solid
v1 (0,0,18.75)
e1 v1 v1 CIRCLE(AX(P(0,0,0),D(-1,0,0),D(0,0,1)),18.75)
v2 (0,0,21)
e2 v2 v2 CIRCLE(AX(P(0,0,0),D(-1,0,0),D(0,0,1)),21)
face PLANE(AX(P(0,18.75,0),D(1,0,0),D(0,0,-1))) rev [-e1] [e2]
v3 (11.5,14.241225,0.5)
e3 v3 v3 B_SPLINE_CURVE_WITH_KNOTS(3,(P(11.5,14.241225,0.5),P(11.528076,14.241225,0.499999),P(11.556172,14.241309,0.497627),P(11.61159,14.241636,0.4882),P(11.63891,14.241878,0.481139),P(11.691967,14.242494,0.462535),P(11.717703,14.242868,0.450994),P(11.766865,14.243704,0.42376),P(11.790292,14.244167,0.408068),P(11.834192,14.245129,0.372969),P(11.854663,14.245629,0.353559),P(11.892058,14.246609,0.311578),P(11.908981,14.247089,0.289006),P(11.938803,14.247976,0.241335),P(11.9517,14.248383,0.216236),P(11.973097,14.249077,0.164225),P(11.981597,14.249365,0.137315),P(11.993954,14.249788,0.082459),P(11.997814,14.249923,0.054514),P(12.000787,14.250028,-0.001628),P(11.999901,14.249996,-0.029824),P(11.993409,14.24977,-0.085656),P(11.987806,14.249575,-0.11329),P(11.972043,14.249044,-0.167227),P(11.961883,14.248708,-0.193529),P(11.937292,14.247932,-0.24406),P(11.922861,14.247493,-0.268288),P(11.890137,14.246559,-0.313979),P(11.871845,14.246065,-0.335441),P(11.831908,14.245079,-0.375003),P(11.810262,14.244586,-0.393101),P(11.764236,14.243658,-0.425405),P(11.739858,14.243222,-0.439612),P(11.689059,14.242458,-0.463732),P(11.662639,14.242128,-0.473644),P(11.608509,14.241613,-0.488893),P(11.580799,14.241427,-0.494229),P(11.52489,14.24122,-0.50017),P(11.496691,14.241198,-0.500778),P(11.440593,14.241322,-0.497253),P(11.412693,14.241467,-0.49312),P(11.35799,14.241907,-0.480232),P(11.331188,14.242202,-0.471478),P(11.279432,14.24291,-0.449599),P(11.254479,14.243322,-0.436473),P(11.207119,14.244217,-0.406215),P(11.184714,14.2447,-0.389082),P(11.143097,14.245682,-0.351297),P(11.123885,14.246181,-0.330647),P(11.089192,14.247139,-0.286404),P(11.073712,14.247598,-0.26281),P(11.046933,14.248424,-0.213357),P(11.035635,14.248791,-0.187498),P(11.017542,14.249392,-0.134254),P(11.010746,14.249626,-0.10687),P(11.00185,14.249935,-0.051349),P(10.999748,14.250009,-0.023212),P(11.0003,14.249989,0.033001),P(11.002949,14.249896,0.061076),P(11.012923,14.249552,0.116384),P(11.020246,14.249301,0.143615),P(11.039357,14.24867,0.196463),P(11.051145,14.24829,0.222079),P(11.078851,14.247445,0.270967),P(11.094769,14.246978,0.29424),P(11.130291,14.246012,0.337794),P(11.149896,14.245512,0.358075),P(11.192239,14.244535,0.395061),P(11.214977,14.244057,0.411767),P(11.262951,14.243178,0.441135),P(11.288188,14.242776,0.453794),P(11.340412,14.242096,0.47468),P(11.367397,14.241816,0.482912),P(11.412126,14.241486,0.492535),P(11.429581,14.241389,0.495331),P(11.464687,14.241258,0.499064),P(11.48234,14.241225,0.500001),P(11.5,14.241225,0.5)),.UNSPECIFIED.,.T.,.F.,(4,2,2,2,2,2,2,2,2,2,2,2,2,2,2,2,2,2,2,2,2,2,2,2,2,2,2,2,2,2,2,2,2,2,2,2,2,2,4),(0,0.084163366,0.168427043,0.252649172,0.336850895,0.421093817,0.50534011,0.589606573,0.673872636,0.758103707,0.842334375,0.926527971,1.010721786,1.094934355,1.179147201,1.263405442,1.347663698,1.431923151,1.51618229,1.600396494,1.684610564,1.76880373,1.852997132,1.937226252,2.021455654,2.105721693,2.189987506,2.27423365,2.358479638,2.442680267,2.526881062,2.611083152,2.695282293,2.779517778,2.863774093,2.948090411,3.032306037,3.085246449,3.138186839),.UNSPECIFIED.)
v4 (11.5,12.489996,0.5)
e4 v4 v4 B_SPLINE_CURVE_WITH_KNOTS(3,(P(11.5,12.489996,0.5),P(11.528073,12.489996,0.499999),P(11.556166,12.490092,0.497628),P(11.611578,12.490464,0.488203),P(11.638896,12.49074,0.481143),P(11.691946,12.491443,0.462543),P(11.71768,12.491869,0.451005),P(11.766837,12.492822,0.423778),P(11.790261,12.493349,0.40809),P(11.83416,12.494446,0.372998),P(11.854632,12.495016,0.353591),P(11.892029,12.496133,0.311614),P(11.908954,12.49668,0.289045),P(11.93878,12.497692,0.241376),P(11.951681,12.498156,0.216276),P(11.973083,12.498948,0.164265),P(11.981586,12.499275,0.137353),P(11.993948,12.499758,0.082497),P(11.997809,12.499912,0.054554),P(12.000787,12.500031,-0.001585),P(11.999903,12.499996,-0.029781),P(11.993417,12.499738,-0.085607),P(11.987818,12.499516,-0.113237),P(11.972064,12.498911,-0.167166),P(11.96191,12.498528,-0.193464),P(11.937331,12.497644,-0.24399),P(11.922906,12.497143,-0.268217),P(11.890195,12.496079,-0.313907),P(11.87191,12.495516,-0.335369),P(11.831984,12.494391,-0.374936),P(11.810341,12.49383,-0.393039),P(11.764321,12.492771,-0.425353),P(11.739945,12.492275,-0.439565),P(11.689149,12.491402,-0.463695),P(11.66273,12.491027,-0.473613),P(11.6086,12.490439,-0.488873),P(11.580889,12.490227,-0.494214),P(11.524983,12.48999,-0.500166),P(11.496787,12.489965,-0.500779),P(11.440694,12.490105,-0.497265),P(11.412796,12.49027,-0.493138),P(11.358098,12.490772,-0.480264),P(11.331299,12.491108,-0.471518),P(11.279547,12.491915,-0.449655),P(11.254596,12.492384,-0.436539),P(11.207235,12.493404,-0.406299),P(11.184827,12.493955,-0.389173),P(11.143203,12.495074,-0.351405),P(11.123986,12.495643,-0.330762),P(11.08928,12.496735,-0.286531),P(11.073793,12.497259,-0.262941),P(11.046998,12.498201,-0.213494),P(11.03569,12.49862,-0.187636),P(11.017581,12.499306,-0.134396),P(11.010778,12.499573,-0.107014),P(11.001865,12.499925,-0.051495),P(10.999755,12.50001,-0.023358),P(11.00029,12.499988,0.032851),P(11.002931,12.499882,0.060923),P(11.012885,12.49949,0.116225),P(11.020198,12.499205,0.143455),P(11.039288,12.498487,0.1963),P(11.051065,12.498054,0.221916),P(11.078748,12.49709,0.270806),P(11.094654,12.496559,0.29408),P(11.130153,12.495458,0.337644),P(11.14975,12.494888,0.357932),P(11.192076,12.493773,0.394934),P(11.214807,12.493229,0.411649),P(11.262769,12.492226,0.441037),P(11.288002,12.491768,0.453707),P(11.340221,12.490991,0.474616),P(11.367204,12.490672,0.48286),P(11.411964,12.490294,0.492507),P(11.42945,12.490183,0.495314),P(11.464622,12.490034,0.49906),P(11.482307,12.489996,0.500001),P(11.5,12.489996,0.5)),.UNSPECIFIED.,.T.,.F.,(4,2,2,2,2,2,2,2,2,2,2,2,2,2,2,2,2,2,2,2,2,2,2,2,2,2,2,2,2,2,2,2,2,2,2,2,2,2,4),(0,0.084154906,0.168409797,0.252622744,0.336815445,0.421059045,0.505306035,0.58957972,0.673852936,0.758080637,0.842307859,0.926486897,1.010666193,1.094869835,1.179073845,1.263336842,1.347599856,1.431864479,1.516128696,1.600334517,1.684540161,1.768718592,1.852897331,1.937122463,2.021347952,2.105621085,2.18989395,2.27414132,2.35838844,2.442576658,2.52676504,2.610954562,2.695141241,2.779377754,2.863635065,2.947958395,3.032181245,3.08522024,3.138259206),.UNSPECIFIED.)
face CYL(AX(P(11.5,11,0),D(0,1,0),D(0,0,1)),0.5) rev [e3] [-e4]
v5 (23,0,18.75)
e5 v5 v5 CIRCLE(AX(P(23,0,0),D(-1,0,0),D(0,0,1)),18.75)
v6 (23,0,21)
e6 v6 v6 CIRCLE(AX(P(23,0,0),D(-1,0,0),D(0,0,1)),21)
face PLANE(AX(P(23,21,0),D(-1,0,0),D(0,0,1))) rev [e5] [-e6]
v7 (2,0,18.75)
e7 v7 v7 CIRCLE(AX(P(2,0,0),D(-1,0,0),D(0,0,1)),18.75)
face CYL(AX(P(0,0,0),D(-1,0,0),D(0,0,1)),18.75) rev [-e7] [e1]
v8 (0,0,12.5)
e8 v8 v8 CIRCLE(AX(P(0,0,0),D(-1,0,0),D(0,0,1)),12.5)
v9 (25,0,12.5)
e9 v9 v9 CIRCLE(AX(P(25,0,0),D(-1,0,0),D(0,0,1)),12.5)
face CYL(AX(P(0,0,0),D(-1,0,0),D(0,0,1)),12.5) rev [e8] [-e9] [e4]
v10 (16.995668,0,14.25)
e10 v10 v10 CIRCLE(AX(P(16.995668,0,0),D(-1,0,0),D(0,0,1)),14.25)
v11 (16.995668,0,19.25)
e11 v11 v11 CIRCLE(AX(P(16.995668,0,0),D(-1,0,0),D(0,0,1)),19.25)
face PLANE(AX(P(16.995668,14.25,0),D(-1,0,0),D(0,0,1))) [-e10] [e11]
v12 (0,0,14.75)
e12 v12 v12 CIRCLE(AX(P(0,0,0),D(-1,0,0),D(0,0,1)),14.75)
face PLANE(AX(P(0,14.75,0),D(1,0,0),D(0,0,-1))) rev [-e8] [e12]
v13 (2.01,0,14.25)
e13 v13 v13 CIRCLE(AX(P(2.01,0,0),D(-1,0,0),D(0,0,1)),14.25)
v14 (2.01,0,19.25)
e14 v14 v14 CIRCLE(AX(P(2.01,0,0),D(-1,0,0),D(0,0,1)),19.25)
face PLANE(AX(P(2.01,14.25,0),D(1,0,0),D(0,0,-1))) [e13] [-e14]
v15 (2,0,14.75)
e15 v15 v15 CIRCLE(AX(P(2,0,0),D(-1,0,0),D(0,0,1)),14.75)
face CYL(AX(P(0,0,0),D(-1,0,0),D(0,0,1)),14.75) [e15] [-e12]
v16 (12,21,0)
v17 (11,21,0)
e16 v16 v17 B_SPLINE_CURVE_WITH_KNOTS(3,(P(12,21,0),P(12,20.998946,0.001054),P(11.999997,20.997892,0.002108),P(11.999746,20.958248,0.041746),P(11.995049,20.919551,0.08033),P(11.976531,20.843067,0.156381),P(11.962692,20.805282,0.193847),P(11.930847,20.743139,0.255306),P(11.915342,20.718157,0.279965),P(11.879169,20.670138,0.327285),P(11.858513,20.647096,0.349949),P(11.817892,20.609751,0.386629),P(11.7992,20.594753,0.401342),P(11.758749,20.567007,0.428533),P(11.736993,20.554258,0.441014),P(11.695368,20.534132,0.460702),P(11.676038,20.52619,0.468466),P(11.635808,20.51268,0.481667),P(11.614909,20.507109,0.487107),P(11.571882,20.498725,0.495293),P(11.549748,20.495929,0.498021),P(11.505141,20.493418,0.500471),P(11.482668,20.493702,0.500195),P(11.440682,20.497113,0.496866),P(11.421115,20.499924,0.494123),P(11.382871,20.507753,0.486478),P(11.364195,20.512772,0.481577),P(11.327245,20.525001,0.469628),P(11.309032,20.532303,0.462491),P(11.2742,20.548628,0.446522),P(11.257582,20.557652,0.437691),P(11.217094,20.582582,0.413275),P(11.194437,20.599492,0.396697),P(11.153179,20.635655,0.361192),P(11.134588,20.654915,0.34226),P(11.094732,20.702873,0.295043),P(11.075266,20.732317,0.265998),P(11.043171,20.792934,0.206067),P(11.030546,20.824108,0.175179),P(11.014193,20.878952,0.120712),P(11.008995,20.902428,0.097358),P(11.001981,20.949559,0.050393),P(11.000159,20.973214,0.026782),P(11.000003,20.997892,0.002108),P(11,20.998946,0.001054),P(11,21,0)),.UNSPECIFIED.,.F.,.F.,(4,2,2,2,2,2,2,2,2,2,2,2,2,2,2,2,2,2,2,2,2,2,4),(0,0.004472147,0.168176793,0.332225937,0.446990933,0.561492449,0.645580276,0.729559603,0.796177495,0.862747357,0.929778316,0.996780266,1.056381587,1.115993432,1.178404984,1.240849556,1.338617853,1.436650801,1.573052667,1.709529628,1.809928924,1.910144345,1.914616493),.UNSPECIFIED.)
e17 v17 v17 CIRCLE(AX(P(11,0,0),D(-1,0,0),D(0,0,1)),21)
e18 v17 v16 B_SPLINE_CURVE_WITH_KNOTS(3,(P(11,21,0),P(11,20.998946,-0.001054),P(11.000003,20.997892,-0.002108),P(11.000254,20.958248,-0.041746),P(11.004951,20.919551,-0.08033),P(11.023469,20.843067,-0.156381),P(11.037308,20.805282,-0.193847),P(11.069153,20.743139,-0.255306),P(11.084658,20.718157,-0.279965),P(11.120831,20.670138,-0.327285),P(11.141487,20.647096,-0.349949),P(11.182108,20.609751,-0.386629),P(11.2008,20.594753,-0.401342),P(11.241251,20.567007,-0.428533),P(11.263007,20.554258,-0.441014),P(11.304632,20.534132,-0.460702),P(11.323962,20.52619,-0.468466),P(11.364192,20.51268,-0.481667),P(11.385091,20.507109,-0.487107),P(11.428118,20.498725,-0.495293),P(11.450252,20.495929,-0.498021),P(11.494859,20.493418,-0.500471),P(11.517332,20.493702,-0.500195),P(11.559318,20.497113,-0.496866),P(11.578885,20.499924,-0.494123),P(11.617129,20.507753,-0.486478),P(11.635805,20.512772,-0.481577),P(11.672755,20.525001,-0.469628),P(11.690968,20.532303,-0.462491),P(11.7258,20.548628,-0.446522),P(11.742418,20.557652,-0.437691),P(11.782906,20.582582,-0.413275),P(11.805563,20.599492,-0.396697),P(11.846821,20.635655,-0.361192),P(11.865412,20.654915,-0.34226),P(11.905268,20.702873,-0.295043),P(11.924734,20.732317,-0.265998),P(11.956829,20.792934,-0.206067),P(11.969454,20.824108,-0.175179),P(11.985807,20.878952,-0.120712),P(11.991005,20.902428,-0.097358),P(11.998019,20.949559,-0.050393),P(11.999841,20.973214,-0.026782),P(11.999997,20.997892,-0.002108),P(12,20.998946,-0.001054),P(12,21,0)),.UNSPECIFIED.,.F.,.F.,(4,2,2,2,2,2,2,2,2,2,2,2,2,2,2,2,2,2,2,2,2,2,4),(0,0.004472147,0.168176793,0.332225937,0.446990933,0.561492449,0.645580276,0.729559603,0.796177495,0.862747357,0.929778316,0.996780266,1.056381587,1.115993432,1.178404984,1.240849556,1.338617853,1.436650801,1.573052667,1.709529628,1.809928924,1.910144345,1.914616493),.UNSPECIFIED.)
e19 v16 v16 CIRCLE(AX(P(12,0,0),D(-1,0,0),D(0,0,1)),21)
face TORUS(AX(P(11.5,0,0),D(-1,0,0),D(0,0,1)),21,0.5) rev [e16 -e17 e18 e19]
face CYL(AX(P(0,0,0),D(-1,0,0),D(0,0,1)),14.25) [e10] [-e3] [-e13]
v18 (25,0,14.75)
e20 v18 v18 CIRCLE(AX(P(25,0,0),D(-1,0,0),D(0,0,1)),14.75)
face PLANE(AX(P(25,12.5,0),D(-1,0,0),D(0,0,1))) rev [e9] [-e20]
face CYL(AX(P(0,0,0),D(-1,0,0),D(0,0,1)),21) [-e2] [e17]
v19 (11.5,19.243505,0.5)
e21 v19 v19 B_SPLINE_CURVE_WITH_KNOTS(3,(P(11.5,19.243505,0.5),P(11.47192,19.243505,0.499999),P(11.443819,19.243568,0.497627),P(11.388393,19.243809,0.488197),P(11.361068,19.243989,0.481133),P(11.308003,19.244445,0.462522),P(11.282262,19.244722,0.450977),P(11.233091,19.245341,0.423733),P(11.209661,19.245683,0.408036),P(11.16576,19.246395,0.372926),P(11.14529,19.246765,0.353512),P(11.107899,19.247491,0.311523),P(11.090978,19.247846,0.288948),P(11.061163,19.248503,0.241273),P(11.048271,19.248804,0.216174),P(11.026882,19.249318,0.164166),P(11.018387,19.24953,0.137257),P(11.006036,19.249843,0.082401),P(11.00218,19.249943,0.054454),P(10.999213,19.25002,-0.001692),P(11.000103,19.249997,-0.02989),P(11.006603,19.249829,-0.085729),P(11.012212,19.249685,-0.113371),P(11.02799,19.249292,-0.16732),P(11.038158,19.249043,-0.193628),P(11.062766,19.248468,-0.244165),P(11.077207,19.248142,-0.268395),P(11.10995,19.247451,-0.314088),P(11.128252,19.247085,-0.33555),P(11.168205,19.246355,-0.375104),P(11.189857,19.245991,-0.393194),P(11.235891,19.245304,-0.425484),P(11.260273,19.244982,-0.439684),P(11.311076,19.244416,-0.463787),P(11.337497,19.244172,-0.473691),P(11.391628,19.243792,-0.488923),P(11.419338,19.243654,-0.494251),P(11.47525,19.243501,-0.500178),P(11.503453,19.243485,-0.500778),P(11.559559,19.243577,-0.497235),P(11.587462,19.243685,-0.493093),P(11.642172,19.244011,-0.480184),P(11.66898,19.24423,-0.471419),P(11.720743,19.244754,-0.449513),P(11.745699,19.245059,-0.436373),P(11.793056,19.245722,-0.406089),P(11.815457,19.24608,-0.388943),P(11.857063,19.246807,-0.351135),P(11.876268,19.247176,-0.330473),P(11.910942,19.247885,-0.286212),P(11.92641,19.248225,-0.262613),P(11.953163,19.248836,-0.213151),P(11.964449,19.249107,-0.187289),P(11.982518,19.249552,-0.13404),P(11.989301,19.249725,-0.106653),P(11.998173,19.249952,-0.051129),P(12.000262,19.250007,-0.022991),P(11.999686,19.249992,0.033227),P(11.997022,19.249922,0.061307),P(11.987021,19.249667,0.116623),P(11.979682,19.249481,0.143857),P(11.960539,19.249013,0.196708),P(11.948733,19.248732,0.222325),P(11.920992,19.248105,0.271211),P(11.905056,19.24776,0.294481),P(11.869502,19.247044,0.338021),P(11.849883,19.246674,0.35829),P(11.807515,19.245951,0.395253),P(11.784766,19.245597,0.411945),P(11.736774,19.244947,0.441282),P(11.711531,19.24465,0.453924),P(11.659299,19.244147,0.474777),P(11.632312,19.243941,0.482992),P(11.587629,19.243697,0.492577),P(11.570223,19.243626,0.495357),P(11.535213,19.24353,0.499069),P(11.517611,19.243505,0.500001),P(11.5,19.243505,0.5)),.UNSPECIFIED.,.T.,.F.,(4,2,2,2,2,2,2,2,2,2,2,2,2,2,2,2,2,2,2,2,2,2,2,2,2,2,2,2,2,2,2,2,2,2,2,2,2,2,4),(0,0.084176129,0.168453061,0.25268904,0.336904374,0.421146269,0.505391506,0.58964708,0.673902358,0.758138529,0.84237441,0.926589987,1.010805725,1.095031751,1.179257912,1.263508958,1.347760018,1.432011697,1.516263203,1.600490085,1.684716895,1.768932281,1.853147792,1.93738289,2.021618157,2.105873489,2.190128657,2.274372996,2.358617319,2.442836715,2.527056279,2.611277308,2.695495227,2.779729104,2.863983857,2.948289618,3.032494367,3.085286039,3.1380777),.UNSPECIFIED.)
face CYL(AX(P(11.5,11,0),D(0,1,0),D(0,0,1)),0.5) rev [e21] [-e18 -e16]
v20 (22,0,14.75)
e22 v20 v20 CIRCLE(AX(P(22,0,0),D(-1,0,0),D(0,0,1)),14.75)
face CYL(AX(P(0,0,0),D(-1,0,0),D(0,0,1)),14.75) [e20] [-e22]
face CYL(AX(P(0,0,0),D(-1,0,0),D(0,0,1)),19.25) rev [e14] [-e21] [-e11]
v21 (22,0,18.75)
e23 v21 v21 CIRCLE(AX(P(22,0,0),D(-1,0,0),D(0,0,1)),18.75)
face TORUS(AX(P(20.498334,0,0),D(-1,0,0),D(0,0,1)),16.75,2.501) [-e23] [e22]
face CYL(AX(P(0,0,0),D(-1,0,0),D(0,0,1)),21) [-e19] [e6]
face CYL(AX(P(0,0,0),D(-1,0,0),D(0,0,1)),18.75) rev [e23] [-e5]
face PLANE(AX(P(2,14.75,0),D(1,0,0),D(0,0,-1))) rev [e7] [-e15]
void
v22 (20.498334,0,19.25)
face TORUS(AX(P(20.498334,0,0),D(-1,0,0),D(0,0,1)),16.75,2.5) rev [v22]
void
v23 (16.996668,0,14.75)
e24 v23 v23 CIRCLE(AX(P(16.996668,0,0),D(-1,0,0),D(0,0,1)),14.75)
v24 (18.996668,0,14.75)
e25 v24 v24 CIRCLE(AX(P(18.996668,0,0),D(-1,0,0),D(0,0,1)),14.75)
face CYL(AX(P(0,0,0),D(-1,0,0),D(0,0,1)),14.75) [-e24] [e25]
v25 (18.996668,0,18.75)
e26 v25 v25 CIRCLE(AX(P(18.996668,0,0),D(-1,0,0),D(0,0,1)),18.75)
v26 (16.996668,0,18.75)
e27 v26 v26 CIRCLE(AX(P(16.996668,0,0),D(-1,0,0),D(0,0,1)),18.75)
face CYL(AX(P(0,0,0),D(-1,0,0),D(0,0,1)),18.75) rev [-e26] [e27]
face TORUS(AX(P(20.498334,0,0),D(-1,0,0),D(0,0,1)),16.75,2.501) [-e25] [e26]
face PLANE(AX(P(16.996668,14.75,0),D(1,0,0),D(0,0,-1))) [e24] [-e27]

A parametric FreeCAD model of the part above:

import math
import FreeCAD as App
import Part
import Sketcher


def add_polygon(sketch, points):
    """Adds a closed chain of lines whose ends are joined by coincident constraints."""
    first, n = sketch.GeometryCount, len(points)
    for a, b in zip(points, points[1:] + points[:1]):
        sketch.addGeometry(Part.LineSegment(App.Vector(*a, 0), App.Vector(*b, 0)), False)
    for i in range(n):
        sketch.addConstraint(Sketcher.Constraint("Coincident", first + i, 2, first + (i + 1) % n, 1))

doc = App.newDocument("Part")
body = doc.addObject("PartDesign::Body", "Body")

sketch1 = body.newObject("Sketcher::SketchObject", "Sketch")
sketch1.AttachmentSupport = (doc.getObject("XY_Plane"), [""])
sketch1.MapMode = "FlatFace"
sketch1.addGeometry(Part.LineSegment(App.Vector(0, 14.8, 0), App.Vector(0, 12.5, 0)), False)
sketch1.addGeometry(Part.LineSegment(App.Vector(0, 12.5, 0), App.Vector(25, 12.5, 0)), False)
sketch1.addGeometry(Part.LineSegment(App.Vector(25, 12.5, 0), App.Vector(25, 14.8, 0)), False)
sketch1.addGeometry(Part.LineSegment(App.Vector(25, 14.8, 0), App.Vector(22, 14.8, 0)), False)
sketch1.addGeometry(Part.ArcOfCircle(Part.Circle(App.Vector(20.5, 16.8, 0), App.Vector(0, 0, 1), 2.5), math.radians(-53), math.radians(53)), False)
sketch1.addGeometry(Part.LineSegment(App.Vector(22, 18.8, 0), App.Vector(23, 18.8, 0)), False)
sketch1.addGeometry(Part.LineSegment(App.Vector(23, 18.8, 0), App.Vector(23, 21, 0)), False)
sketch1.addGeometry(Part.LineSegment(App.Vector(23, 21, 0), App.Vector(12, 21, 0)), False)
sketch1.addGeometry(Part.ArcOfCircle(Part.Circle(App.Vector(11.5, 21, 0), App.Vector(0, 0, 1), 0.5), math.radians(180), math.radians(360)), False)
sketch1.addGeometry(Part.LineSegment(App.Vector(11, 21, 0), App.Vector(0, 21, 0)), False)
sketch1.addGeometry(Part.LineSegment(App.Vector(0, 21, 0), App.Vector(0, 18.8, 0)), False)
sketch1.addGeometry(Part.LineSegment(App.Vector(0, 18.8, 0), App.Vector(2, 18.8, 0)), False)
sketch1.addGeometry(Part.LineSegment(App.Vector(2, 18.8, 0), App.Vector(2, 14.8, 0)), False)
sketch1.addGeometry(Part.LineSegment(App.Vector(2, 14.8, 0), App.Vector(0, 14.8, 0)), False)
add_polygon(sketch1, [(17, 14.2), (2, 14.2), (2, 19.2), (17, 19.2)])
sketch1.addGeometry(Part.LineSegment(App.Vector(19, 14.8, 0), App.Vector(17, 14.8, 0)), False)
sketch1.addGeometry(Part.LineSegment(App.Vector(17, 14.8, 0), App.Vector(17, 18.8, 0)), False)
sketch1.addGeometry(Part.LineSegment(App.Vector(17, 18.8, 0), App.Vector(19, 18.8, 0)), False)
sketch1.addGeometry(Part.ArcOfCircle(Part.Circle(App.Vector(20.5, 16.8, 0), App.Vector(0, 0, 1), 2.5), math.radians(127), math.radians(233)), False)
sketch1.addGeometry(Part.Circle(App.Vector(20.5, 16.8, 0), App.Vector(0, 0, 1), 2.5), False)
sketch1.addConstraint(Sketcher.Constraint("Coincident", 0, 2, 1, 1))
sketch1.addConstraint(Sketcher.Constraint("Coincident", 1, 2, 2, 1))
sketch1.addConstraint(Sketcher.Constraint("Coincident", 2, 2, 3, 1))
sketch1.addConstraint(Sketcher.Constraint("Coincident", 3, 2, 4, 1))
sketch1.addConstraint(Sketcher.Constraint("Coincident", 4, 2, 5, 1))
sketch1.addConstraint(Sketcher.Constraint("Coincident", 5, 2, 6, 1))
sketch1.addConstraint(Sketcher.Constraint("Coincident", 6, 2, 7, 1))
sketch1.addConstraint(Sketcher.Constraint("Coincident", 7, 2, 8, 2))
sketch1.addConstraint(Sketcher.Constraint("Coincident", 8, 1, 9, 1))
sketch1.addConstraint(Sketcher.Constraint("Coincident", 9, 2, 10, 1))
sketch1.addConstraint(Sketcher.Constraint("Coincident", 10, 2, 11, 1))
sketch1.addConstraint(Sketcher.Constraint("Coincident", 11, 2, 12, 1))
sketch1.addConstraint(Sketcher.Constraint("Coincident", 12, 2, 13, 1))
sketch1.addConstraint(Sketcher.Constraint("Coincident", 13, 2, 0, 1))
sketch1.addConstraint(Sketcher.Constraint("Coincident", 18, 2, 19, 1))
sketch1.addConstraint(Sketcher.Constraint("Coincident", 19, 2, 20, 1))
sketch1.addConstraint(Sketcher.Constraint("Coincident", 20, 2, 21, 1))
sketch1.addConstraint(Sketcher.Constraint("Coincident", 21, 2, 18, 1))
sketch1.addConstraint(Sketcher.Constraint("Vertical", 0))
sketch1.addConstraint(Sketcher.Constraint("Horizontal", 1))
sketch1.addConstraint(Sketcher.Constraint("Vertical", 2))
sketch1.addConstraint(Sketcher.Constraint("Horizontal", 3))
sketch1.addConstraint(Sketcher.Constraint("Horizontal", 5))
sketch1.addConstraint(Sketcher.Constraint("Vertical", 6))
sketch1.addConstraint(Sketcher.Constraint("Horizontal", 7))
sketch1.addConstraint(Sketcher.Constraint("Horizontal", 9))
sketch1.addConstraint(Sketcher.Constraint("Vertical", 10))
sketch1.addConstraint(Sketcher.Constraint("Horizontal", 11))
sketch1.addConstraint(Sketcher.Constraint("Vertical", 12))
sketch1.addConstraint(Sketcher.Constraint("Horizontal", 13))
sketch1.addConstraint(Sketcher.Constraint("Horizontal", 14))
sketch1.addConstraint(Sketcher.Constraint("Vertical", 15))
sketch1.addConstraint(Sketcher.Constraint("Horizontal", 16))
sketch1.addConstraint(Sketcher.Constraint("Vertical", 17))
sketch1.addConstraint(Sketcher.Constraint("Horizontal", 18))
sketch1.addConstraint(Sketcher.Constraint("Vertical", 19))
sketch1.addConstraint(Sketcher.Constraint("Horizontal", 20))
sketch1.addConstraint(Sketcher.Constraint("Coincident", 21, 3, 4, 3))
sketch1.addConstraint(Sketcher.Constraint("Coincident", 22, 3, 4, 3))
sketch1.addConstraint(Sketcher.Constraint("Equal", 4, 21))
sketch1.addConstraint(Sketcher.Constraint("PointOnObject", 0, 2, -2))
sketch1.addConstraint(Sketcher.Constraint("PointOnObject", 9, 2, -2))
sketch1.addConstraint(Sketcher.Constraint("Horizontal", 8, 3, 6, 2))
sketch1.addConstraint(Sketcher.Constraint("Horizontal", 7, 2, 8, 1))
sketch1.addConstraint(Sketcher.Constraint("Horizontal", 5, 2, 10, 2))
sketch1.addConstraint(Sketcher.Constraint("Horizontal", 3, 2, 12, 2))
sketch1.addConstraint(Sketcher.Constraint("Horizontal", 13, 2, 18, 2))
sketch1.addConstraint(Sketcher.Constraint("Horizontal", 11, 2, 19, 2))
sketch1.addConstraint(Sketcher.Constraint("Vertical", 3, 2, 4, 2))
sketch1.addConstraint(Sketcher.Constraint("Equal", 7, 9))
sketch1.addConstraint(Sketcher.Constraint("Equal", 13, 18))
sketch1.addConstraint(Sketcher.Constraint("Equal", 2, 6))
sketch1.addConstraint(Sketcher.Constraint("Diameter", 22, 5.0))
sketch1.addConstraint(Sketcher.Constraint("Radius", 8, 0.5))
sketch1.addConstraint(Sketcher.Constraint("DistanceX", 1, 1, 1, 2, 25.0))
sketch1.addConstraint(Sketcher.Constraint("DistanceX", 3, 2, 3, 1, 3.0))
sketch1.addConstraint(Sketcher.Constraint("DistanceX", 5, 1, 5, 2, 1.0))
sketch1.addConstraint(Sketcher.Constraint("DistanceX", 11, 1, 11, 2, 2.0))
sketch1.addConstraint(Sketcher.Constraint("DistanceY", 12, 2, 12, 1, 4.0))
sketch1.addConstraint(Sketcher.Constraint("DistanceY", 15, 1, 15, 2, 5.0))
sketch1.addConstraint(Sketcher.Constraint("DistanceY", -1, 1, 8, 3, 21.0))
sketch1.addConstraint(Sketcher.Constraint("Radius", 4, 2.501))
sketch1.addConstraint(Sketcher.Constraint("DistanceY", 0, 2, 0, 1, 2.25))
sketch1.addConstraint(Sketcher.Constraint("DistanceY", 14, 2, 12, 2, 0.5))
sketch1.addConstraint(Sketcher.Constraint("DistanceX", -1, 1, 14, 2, 2.01))
sketch1.addConstraint(Sketcher.Constraint("DistanceX", 17, 2, 18, 2, 0.001))
revolution = body.newObject("PartDesign::Revolution", "Revolution")
revolution.Profile = sketch1
revolution.ReferenceAxis = (sketch1, ["H_Axis"])
revolution.Angle = 360

sketch2 = body.newObject("Sketcher::SketchObject", "Sketch001")
sketch2.AttachmentSupport = (doc.getObject("XZ_Plane"), [""])
sketch2.MapMode = "FlatFace"
sketch2.AttachmentOffset = App.Placement(App.Vector(0, 0, -21), App.Rotation())
sketch2.addGeometry(Part.Circle(App.Vector(11.5, 0, 0), App.Vector(0, 0, 1), 0.5), False)
sketch2.addConstraint(Sketcher.Constraint("PointOnObject", 0, 3, -1))
sketch2.addConstraint(Sketcher.Constraint("Diameter", 0, 1.0))
sketch2.addConstraint(Sketcher.Constraint("DistanceX", -1, 1, 0, 3, 11.5))
pocket1 = body.newObject("PartDesign::Pocket", "Pocket")
pocket1.Profile = sketch2
pocket1.Length = 10
pocket1.Reversed = True

doc.recompute()
